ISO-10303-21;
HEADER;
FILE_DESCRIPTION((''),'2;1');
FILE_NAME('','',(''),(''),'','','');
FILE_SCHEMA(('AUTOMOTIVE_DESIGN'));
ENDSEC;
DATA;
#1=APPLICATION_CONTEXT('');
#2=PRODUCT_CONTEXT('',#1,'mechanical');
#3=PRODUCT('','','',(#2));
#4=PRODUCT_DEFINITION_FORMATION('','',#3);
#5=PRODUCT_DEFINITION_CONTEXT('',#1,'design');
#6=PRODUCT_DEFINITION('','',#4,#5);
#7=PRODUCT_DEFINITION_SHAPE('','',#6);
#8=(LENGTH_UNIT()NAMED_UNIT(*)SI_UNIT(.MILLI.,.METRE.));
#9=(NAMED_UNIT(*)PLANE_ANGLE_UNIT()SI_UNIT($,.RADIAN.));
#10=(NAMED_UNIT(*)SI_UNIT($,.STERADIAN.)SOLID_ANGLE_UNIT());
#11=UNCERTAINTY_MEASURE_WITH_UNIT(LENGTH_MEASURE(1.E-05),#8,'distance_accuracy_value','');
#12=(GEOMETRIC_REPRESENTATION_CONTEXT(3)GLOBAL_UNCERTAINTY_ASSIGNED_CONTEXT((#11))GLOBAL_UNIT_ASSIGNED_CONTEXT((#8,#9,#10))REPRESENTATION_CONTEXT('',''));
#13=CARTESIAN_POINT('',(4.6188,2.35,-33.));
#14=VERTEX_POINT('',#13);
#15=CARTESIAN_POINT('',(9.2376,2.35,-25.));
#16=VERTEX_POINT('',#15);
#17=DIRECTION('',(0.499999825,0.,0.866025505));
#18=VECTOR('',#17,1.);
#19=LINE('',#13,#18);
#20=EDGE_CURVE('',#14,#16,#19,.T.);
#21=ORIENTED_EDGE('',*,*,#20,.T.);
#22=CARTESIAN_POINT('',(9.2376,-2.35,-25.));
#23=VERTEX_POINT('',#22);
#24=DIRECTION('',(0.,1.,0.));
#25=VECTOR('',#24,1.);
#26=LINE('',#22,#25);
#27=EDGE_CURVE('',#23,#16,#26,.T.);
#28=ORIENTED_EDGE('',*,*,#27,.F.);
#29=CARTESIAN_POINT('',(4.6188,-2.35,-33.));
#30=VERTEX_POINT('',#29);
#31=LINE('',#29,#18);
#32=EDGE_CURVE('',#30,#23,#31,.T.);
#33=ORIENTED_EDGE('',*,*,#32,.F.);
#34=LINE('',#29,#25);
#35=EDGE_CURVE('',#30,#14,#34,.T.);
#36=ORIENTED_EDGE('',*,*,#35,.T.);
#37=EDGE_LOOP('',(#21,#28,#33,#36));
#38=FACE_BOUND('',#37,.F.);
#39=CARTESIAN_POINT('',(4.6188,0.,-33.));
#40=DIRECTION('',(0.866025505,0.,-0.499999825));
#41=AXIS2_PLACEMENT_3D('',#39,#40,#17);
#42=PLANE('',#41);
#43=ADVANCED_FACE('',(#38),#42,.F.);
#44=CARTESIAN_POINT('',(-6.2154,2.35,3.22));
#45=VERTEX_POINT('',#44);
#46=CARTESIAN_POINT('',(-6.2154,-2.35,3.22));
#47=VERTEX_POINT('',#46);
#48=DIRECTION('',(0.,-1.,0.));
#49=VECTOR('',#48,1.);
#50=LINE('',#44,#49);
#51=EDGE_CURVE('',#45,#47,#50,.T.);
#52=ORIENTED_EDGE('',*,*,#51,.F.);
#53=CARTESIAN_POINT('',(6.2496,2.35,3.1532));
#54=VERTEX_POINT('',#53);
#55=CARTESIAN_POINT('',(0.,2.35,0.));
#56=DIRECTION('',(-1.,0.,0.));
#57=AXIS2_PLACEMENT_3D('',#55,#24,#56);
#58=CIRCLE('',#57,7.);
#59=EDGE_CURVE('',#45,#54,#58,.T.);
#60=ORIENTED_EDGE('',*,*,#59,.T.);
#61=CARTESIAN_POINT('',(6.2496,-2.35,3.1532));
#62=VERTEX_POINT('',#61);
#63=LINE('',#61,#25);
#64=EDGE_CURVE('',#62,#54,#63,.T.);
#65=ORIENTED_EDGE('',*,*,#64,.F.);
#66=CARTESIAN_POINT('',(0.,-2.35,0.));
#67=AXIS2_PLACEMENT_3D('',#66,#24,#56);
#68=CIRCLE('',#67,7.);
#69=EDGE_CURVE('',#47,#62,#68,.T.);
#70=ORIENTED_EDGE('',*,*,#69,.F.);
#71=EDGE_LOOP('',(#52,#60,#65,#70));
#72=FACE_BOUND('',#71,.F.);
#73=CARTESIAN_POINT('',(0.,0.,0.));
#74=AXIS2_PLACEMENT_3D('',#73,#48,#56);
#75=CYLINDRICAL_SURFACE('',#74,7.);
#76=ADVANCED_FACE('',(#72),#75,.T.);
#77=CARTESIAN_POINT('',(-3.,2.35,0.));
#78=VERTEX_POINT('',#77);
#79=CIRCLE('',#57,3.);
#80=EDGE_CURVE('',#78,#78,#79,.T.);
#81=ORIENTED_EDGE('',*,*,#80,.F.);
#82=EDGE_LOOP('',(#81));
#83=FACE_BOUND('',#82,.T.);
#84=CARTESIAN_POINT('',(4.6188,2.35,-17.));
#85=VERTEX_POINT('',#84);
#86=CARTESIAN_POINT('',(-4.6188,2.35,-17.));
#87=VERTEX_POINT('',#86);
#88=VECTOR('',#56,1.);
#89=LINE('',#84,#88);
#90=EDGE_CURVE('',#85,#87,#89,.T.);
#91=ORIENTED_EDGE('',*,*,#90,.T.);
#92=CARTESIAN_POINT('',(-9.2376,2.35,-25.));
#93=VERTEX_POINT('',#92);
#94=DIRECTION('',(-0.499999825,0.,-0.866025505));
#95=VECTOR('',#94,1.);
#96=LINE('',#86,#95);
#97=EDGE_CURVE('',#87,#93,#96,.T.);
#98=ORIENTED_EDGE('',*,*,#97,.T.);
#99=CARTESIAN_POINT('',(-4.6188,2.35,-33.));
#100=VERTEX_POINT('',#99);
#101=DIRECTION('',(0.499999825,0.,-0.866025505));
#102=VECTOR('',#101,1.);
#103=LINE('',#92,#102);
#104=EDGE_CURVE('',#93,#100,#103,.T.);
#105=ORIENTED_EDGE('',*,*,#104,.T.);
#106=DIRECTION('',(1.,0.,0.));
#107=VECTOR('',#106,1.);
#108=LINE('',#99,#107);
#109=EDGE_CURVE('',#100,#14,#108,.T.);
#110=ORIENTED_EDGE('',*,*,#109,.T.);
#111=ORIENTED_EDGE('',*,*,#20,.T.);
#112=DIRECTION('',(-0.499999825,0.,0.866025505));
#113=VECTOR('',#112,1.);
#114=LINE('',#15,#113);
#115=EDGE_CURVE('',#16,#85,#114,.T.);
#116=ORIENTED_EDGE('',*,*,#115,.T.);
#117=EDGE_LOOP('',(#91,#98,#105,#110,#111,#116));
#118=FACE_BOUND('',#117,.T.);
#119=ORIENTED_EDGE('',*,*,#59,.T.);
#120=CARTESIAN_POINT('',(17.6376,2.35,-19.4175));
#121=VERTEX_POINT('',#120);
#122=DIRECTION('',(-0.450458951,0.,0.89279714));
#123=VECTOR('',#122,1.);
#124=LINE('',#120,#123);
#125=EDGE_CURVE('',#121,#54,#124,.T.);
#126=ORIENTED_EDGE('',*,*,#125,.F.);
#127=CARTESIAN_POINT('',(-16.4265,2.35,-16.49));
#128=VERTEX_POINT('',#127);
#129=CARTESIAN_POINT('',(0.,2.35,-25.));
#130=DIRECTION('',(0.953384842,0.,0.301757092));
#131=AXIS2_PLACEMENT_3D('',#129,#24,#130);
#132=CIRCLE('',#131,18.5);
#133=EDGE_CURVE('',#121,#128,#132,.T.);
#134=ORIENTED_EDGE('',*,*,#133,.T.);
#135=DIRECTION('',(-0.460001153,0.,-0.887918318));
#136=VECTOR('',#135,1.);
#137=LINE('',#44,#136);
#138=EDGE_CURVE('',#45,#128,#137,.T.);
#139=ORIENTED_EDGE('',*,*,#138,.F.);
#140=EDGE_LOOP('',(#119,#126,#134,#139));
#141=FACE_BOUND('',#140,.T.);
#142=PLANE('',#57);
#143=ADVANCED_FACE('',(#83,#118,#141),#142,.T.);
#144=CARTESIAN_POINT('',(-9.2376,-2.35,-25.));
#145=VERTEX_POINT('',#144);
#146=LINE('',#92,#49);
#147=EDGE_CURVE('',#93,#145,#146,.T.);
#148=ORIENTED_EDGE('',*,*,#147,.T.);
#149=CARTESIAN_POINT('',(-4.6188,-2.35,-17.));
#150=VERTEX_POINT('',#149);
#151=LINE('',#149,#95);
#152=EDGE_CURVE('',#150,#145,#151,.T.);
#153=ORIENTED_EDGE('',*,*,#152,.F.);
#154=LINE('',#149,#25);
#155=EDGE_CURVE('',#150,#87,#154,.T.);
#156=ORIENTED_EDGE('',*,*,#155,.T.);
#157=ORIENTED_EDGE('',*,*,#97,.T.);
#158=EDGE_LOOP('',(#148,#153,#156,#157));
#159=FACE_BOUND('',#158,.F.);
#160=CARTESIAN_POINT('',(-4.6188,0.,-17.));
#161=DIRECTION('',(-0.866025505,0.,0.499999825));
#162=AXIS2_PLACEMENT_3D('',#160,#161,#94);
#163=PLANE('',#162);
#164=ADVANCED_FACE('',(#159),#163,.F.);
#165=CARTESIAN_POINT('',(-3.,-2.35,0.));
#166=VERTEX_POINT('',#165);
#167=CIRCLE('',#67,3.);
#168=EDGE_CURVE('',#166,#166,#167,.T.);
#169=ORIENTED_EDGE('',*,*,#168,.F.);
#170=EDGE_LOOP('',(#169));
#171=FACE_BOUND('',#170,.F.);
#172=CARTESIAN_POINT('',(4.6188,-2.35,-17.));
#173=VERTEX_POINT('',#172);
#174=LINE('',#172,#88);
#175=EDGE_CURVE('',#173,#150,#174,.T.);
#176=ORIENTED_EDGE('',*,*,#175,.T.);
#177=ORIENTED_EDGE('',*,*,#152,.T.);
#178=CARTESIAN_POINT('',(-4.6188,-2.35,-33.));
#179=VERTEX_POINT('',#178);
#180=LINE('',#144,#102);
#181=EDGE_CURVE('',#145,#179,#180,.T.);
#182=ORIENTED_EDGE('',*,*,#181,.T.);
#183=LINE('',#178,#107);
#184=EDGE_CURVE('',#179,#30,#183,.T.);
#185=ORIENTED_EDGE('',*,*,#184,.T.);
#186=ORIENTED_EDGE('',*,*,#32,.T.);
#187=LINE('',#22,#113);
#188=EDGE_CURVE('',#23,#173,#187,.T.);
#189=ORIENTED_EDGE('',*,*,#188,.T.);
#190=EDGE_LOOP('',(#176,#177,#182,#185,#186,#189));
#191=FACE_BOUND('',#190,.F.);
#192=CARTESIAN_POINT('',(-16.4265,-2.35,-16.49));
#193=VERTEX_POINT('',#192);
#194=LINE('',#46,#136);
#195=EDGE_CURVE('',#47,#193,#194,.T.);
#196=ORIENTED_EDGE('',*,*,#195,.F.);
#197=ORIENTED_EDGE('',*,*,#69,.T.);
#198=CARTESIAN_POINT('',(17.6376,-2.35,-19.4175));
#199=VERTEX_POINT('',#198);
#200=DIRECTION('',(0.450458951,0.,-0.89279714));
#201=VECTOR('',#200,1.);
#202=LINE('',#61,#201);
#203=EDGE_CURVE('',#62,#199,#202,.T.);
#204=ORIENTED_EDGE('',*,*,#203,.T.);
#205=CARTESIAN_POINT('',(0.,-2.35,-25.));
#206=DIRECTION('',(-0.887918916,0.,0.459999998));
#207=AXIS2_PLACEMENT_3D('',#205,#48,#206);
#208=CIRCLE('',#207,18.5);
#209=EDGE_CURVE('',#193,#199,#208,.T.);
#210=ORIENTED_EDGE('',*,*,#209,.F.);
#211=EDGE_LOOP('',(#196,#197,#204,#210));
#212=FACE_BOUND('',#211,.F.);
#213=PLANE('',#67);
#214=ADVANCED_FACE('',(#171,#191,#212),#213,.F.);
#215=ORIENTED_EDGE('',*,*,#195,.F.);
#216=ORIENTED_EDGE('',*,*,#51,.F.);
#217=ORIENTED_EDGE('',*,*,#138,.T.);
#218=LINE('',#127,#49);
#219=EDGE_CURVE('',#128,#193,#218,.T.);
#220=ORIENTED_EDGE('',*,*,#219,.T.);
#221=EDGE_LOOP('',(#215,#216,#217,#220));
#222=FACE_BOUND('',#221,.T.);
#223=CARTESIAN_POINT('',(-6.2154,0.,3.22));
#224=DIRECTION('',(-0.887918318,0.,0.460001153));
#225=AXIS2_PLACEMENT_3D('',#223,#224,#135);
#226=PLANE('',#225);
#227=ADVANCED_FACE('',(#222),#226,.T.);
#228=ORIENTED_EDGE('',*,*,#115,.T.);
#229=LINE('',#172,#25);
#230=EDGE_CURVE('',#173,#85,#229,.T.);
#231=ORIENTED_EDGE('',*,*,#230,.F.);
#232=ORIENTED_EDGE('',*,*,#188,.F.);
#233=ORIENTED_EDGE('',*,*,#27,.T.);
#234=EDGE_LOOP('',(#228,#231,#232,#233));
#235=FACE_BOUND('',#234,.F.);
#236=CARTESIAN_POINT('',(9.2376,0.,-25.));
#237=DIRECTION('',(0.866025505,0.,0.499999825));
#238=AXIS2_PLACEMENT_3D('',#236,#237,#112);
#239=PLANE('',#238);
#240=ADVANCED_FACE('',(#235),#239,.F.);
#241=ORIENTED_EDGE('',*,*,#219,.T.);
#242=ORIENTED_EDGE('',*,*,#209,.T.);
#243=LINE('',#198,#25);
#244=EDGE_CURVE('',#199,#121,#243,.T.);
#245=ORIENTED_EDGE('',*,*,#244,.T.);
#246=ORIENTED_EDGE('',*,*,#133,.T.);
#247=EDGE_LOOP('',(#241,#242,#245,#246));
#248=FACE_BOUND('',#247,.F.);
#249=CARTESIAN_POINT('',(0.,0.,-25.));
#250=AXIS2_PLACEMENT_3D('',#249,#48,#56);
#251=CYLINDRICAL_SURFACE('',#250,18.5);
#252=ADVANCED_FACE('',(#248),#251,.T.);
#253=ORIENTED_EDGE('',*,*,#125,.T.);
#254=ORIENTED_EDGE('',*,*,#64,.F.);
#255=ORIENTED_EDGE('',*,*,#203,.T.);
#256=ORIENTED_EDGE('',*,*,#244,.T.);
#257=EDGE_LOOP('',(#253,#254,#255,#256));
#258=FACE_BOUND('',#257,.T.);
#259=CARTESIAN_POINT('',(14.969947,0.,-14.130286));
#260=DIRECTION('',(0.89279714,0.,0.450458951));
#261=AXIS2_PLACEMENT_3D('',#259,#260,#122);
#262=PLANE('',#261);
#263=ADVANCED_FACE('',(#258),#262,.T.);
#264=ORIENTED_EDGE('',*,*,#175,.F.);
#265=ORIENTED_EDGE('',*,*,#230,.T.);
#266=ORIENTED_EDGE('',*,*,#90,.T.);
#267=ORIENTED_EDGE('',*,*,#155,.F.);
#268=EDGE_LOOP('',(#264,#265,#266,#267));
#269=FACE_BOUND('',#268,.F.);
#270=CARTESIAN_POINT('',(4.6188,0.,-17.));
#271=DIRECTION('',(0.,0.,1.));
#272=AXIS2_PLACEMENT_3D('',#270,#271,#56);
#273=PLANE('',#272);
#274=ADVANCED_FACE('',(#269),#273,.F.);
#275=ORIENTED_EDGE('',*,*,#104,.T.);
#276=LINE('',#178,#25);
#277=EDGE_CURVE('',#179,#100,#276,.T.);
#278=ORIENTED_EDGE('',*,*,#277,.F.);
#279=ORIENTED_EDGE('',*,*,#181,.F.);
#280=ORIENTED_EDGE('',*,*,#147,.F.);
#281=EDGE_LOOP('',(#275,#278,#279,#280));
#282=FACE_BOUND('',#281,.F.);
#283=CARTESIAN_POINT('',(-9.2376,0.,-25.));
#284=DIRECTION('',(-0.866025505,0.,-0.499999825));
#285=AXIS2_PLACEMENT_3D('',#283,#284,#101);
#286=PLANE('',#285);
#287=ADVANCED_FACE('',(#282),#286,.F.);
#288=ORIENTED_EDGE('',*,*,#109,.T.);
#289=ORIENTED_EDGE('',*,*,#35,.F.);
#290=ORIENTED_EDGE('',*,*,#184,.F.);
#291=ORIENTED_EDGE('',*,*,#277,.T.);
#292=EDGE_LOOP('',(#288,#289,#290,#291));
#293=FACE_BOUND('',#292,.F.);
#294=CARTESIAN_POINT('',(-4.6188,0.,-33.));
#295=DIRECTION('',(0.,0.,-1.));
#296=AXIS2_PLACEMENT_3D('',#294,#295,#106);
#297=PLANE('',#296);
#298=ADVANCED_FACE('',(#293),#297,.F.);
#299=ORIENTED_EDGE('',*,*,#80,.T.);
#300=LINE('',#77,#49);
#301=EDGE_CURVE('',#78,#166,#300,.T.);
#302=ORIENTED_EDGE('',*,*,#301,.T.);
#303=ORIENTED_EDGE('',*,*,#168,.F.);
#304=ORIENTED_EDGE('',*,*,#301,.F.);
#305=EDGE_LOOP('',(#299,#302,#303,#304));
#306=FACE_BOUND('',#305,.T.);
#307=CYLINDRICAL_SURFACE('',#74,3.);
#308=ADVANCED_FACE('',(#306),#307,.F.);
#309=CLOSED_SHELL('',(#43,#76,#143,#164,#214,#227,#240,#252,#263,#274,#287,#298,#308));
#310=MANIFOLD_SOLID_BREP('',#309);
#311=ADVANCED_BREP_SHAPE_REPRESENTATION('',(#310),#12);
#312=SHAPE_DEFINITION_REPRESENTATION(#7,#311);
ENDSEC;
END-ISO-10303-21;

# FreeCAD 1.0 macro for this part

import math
import FreeCAD as App
import Part
import Sketcher
from FreeCAD import Vector
Q = App.Units.Quantity

doc = App.newDocument("Part")
body = doc.addObject("PartDesign::Body", "Body")

sketch1 = doc.addObject("Sketcher::SketchObject", "Sketch")
body.addObject(sketch1)
sketch1.AttachmentSupport = (doc.XZ_Plane, [""])
sketch1.MapMode = "FlatFace"
sketch1.addGeometry([
    Part.ArcOfCircle(Part.Circle(Vector(0, 0, 0), Vector(0, 0, 1), 7), math.radians(26.772967), math.radians(152.61277)),
    Part.LineSegment(Vector(6.2496, 3.1532, 0), Vector(17.6376, -19.4175, 0)),
    Part.ArcOfCircle(Part.Circle(Vector(0, -25, 0), Vector(0, 0, 1), 18.5), math.radians(152.612893), math.radians(377.563169)),
    Part.LineSegment(Vector(-16.4265, -16.49, 0), Vector(-6.2154, 3.22, 0)),
    Part.Circle(Vector(0, 0, 0), Vector(0, 0, 1), 3),
    Part.LineSegment(Vector(-9.2376, -25, 0), Vector(-4.6188, -33, 0)),
    Part.LineSegment(Vector(-4.6188, -33, 0), Vector(4.6188, -33, 0)),
    Part.LineSegment(Vector(4.6188, -33, 0), Vector(9.2376, -25, 0)),
    Part.LineSegment(Vector(9.2376, -25, 0), Vector(4.6188, -17, 0)),
    Part.LineSegment(Vector(4.6188, -17, 0), Vector(-4.6188, -17, 0)),
    Part.LineSegment(Vector(-4.6188, -17, 0), Vector(-9.2376, -25, 0)),
], False)
sketch1.addConstraint([
    Sketcher.Constraint("Tangent", 0, 1, 1, 1),
    Sketcher.Constraint("Coincident", 1, 2, 2, 2),
    Sketcher.Constraint("Tangent", 2, 1, 3, 1),
    Sketcher.Constraint("Tangent", 3, 2, 0, 2),
    Sketcher.Constraint("Coincident", 5, 2, 6, 1),
    Sketcher.Constraint("Coincident", 6, 2, 7, 1),
    Sketcher.Constraint("Coincident", 7, 2, 8, 1),
    Sketcher.Constraint("Coincident", 8, 2, 9, 1),
    Sketcher.Constraint("Coincident", 9, 2, 10, 1),
    Sketcher.Constraint("Coincident", 10, 2, 5, 1),
    Sketcher.Constraint("Horizontal", 6),
    Sketcher.Constraint("Horizontal", 9),
    Sketcher.Constraint("Coincident", 0, 3, -1, 1),
    Sketcher.Constraint("Coincident", 4, 3, -1, 1),
    Sketcher.Constraint("Symmetric", 7, 2, 10, 2, -2),
    Sketcher.Constraint("PointOnObject", 2, 3, -2),
    Sketcher.Constraint("Parallel", 5, 8),
    Sketcher.Constraint("Parallel", 7, 10),
    Sketcher.Constraint("Horizontal", 2, 3, 7, 2),
    Sketcher.Constraint("Vertical", 6, 2, 8, 2),
    Sketcher.Constraint("Vertical", 5, 2, 9, 2),
    Sketcher.Constraint("Diameter", 4, 6.0),
    Sketcher.Constraint("Radius", 0, 7.0),
    Sketcher.Constraint("Radius", 2, 18.5),
    Sketcher.Constraint("DistanceY", 2, 3, -1, 1, 25.0),
    Sketcher.Constraint("DistanceY", 6, 2, 8, 2, 16.0),
    Sketcher.Constraint("Angle", 5, Q("-60 deg")),
    Sketcher.Constraint("DistanceX", 7, 2, 1, 2, 8.4),
    Sketcher.Constraint("Distance", 1, 25.281),
])
pad1 = doc.addObject("PartDesign::Pad", "Pad")
body.addObject(pad1)
pad1.Profile = sketch1
pad1.Length = 4.7
pad1.Midplane = True

doc.recompute()
